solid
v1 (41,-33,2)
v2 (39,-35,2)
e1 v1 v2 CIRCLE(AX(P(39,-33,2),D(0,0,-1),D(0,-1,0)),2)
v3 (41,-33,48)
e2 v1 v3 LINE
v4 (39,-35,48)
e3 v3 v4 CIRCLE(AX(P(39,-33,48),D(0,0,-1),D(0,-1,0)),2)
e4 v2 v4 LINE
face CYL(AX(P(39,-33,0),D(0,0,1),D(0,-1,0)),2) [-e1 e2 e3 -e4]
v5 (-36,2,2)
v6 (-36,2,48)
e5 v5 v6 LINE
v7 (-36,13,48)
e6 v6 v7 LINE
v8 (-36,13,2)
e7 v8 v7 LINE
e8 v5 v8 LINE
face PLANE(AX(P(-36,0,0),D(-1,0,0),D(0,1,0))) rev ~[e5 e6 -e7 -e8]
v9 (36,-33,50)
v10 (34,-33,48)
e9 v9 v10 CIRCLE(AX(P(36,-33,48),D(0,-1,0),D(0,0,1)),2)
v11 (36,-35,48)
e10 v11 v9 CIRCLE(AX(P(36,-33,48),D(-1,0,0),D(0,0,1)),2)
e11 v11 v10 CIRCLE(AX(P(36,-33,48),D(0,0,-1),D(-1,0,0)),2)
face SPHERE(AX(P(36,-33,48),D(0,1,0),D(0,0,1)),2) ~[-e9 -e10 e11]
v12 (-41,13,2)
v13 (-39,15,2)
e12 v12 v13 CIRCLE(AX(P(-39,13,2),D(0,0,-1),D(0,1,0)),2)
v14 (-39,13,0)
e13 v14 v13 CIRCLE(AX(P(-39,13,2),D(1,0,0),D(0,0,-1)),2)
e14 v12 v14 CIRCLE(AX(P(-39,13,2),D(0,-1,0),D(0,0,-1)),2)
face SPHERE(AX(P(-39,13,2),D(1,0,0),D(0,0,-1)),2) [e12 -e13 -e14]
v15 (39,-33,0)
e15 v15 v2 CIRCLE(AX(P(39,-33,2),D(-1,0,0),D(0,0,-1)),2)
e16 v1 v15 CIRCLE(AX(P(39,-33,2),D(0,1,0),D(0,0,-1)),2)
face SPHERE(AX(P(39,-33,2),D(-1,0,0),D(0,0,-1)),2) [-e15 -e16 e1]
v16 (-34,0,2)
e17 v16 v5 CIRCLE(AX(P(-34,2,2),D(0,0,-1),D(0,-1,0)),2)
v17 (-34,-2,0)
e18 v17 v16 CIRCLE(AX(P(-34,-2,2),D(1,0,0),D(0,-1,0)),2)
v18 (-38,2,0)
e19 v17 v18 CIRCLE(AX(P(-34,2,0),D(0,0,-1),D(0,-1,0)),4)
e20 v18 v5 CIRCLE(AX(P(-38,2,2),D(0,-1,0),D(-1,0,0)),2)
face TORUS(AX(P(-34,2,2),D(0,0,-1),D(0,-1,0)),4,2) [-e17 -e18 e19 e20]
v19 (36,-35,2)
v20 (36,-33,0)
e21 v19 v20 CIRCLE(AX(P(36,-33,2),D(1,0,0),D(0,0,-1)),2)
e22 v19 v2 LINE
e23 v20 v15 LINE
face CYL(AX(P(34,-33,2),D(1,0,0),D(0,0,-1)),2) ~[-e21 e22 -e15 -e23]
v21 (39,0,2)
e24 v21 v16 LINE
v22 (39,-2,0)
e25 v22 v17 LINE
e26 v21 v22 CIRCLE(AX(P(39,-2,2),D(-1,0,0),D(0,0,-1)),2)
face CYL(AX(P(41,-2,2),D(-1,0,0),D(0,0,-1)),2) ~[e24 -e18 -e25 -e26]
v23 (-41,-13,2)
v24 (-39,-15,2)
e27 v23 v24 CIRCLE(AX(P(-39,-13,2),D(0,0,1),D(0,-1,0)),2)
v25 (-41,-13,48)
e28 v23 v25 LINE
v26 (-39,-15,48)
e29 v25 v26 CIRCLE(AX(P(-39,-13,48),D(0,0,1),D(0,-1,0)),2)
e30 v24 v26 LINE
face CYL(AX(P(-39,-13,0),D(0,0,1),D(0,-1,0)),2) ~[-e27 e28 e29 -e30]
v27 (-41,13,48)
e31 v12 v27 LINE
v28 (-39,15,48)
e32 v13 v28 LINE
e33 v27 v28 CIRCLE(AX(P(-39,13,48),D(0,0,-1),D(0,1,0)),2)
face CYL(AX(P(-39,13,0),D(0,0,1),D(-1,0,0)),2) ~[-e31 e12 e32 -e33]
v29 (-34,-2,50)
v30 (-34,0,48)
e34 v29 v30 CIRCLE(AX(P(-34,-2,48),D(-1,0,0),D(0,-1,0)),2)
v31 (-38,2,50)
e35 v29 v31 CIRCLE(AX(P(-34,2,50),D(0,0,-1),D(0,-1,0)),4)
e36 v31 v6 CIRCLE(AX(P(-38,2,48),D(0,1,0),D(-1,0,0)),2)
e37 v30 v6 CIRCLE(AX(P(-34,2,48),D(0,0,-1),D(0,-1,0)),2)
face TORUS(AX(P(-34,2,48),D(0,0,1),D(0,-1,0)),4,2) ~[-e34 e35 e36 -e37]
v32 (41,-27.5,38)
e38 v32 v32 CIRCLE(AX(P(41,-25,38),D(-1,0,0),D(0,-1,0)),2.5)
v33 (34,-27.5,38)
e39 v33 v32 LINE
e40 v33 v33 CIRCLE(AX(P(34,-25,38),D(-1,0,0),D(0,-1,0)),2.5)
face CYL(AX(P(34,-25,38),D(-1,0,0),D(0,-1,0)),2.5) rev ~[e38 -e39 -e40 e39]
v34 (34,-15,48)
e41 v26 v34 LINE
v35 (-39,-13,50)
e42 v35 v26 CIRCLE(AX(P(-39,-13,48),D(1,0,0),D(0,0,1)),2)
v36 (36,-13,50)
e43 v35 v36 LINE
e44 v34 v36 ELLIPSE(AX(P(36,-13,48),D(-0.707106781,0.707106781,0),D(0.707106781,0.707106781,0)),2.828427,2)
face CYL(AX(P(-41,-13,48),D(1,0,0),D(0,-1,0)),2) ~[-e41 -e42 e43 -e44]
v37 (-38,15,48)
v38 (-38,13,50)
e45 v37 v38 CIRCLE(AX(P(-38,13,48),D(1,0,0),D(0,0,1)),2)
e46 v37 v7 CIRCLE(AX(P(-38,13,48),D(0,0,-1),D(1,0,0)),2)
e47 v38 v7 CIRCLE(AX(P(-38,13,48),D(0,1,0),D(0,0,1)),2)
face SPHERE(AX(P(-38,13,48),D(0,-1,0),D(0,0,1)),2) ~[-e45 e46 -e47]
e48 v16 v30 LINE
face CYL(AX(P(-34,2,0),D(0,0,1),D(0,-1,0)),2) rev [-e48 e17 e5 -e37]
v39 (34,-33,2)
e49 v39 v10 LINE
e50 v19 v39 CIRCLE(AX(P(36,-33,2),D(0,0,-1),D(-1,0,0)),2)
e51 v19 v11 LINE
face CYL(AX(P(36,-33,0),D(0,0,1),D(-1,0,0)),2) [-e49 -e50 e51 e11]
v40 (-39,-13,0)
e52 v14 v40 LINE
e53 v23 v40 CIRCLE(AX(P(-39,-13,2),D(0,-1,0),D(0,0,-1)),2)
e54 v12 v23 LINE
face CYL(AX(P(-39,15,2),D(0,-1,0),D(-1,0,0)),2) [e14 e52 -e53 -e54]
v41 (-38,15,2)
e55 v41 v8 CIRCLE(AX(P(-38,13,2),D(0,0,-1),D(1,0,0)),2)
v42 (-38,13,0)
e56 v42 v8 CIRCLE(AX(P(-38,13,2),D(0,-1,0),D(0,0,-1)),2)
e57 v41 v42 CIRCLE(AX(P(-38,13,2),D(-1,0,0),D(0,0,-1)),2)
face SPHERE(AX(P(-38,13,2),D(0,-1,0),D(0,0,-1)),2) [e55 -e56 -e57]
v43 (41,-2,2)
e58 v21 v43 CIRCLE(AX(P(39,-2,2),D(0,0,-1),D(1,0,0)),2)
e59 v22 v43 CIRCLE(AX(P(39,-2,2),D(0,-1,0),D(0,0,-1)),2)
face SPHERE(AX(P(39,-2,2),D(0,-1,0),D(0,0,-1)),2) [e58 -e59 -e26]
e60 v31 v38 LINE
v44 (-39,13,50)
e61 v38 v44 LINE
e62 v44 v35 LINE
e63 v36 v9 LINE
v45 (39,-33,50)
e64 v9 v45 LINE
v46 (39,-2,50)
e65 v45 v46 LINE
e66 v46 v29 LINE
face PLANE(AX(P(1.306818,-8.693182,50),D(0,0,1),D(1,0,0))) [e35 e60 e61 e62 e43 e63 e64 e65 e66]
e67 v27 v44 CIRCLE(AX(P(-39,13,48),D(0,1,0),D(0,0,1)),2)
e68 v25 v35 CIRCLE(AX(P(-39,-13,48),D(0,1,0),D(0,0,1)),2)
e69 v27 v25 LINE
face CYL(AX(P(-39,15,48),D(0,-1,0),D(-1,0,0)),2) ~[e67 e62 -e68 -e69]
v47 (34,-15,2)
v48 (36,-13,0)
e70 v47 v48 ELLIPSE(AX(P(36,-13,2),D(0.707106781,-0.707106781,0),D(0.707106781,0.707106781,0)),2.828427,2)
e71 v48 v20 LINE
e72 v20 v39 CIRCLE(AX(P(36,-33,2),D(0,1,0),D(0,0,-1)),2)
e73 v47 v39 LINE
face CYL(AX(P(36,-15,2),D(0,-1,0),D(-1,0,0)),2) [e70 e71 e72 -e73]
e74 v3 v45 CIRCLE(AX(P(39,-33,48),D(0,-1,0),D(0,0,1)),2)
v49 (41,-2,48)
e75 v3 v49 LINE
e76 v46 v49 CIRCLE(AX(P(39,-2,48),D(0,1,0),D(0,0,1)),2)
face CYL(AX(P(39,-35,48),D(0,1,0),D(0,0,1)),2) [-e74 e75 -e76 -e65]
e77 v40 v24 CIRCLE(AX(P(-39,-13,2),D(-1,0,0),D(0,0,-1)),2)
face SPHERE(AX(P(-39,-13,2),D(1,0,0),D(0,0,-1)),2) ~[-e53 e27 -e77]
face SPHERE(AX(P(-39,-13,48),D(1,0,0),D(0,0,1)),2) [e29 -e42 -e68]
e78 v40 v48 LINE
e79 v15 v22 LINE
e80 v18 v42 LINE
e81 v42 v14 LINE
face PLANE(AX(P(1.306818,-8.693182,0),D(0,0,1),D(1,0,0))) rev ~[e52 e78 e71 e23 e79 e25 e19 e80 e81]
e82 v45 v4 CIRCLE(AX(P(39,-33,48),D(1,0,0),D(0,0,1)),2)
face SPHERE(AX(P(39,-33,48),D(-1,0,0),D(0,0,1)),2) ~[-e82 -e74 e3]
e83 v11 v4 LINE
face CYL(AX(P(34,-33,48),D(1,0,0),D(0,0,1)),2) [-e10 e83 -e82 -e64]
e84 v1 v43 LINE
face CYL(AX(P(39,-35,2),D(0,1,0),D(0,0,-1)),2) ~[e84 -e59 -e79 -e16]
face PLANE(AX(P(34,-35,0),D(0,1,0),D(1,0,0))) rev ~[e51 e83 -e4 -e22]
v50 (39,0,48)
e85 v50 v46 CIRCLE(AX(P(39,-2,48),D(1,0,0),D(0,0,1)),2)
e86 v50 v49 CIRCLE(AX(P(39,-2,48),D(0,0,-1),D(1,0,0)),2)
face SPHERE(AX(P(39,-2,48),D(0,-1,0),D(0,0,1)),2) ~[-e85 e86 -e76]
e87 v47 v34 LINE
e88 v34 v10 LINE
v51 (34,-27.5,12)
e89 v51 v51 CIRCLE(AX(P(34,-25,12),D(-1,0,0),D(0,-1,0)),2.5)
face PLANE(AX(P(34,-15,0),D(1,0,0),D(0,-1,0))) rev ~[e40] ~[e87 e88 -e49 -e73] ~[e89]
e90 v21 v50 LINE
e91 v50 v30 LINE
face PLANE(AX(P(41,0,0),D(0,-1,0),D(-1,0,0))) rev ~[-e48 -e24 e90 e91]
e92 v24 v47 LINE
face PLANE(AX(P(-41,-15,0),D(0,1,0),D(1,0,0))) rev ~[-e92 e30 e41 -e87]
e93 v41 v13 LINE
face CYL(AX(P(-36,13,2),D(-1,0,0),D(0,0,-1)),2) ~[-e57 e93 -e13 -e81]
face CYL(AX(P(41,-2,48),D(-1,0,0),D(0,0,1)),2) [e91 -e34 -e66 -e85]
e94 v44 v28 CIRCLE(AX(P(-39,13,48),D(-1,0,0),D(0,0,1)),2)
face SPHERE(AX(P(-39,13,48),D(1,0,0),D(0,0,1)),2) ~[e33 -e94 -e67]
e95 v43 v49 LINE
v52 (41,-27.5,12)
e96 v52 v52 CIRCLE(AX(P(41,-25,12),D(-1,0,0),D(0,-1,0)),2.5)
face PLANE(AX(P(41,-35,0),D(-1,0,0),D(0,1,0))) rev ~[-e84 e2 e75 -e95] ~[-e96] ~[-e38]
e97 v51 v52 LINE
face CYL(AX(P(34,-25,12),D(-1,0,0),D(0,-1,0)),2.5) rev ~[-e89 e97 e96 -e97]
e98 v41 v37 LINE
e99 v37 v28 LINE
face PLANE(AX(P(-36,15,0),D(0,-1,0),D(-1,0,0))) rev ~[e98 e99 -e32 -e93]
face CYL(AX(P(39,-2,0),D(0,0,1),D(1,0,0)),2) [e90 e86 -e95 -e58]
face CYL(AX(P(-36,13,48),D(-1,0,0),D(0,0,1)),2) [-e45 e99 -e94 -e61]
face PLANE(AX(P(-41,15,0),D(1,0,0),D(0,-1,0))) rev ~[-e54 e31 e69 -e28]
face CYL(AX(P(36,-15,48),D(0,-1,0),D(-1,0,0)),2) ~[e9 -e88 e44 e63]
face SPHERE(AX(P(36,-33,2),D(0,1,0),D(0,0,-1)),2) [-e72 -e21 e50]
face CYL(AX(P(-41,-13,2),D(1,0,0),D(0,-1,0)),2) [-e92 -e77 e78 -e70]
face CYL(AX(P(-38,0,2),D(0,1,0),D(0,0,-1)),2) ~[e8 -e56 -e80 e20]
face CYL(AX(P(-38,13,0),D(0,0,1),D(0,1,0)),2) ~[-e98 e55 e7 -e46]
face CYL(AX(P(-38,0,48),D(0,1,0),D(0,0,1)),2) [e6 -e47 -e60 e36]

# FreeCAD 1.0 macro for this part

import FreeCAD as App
import Part
import Sketcher


def edges_at(feature, points):
    """Names of the edges that pass closest to the given points."""
    edges = feature.Shape.Edges
    near = lambda p: min(range(len(edges)), key=lambda i: edges[i].distToShape(Part.Vertex(*p))[0])
    return sorted({f"Edge{near(p) + 1}" for p in points})


def add_polygon(sketch, points):
    """Adds a closed chain of lines whose ends are joined by coincident constraints."""
    first, n = sketch.GeometryCount, len(points)
    for a, b in zip(points, points[1:] + points[:1]):
        sketch.addGeometry(Part.LineSegment(App.Vector(*a, 0), App.Vector(*b, 0)), False)
    for i in range(n):
        sketch.addConstraint(Sketcher.Constraint("Coincident", first + i, 2, first + (i + 1) % n, 1))

doc = App.newDocument("Part")
body = doc.addObject("PartDesign::Body", "Body")

# Sketch on XY plane
sketch1 = doc.addObject("Sketcher::SketchObject", "Sketch")
body.addObject(sketch1)
sketch1.AttachmentSupport = (doc.XY_Plane, [""])
sketch1.MapMode = "FlatFace"
add_polygon(sketch1, [(-41, -15), (34, -15), (34, -35), (41, -35), (41, 0), (-36, 0), (-36, 15), (-41, 15)])  # lines 0-7
sketch1.addConstraint([
    Sketcher.Constraint("Horizontal", 0),
    Sketcher.Constraint("Vertical", 1),
    Sketcher.Constraint("Horizontal", 2),
    Sketcher.Constraint("Vertical", 3),
    Sketcher.Constraint("Horizontal", 4),
    Sketcher.Constraint("Vertical", 5),
    Sketcher.Constraint("Horizontal", 6),
    Sketcher.Constraint("Vertical", 7),
    Sketcher.Constraint("PointOnObject", 3, 2, -1),
    Sketcher.Constraint("DistanceX", 0, 1, 0, 2, 75.0),
    Sketcher.Constraint("DistanceX", 2, 1, 2, 2, 7.0),
    Sketcher.Constraint("DistanceX", 4, 2, 4, 1, 77.0),
    Sketcher.Constraint("DistanceY", 1, 2, 1, 1, 20.0),
    Sketcher.Constraint("DistanceY", 3, 1, 3, 2, 35.0),
    Sketcher.Constraint("DistanceY", 5, 1, 5, 2, 15.0),
    Sketcher.Constraint("DistanceX", -1, 1, 0, 2, 34.0),
])
pad1 = doc.addObject("PartDesign::Pad", "Pad")
body.addObject(pad1)
pad1.Profile = sketch1
pad1.Length = 50

# Sketch on YZ plane
sketch2 = doc.addObject("Sketcher::SketchObject", "Sketch001")
body.addObject(sketch2)
sketch2.AttachmentSupport = (doc.YZ_Plane, [""])
sketch2.MapMode = "FlatFace"
sketch2.AttachmentOffset = App.Placement(App.Vector(0, 0, 34), App.Rotation())
sketch2.addGeometry([
    Part.Circle(App.Vector(-25, 12, 0), App.Vector(0, 0, 1), 2.5),
    Part.Circle(App.Vector(-25, 38, 0), App.Vector(0, 0, 1), 2.5),
], False)
sketch2.addConstraint([
    Sketcher.Constraint("Equal", 0, 1),
    Sketcher.Constraint("Vertical", 0, 3, 1, 3),
    Sketcher.Constraint("Diameter", 0, 5.0),
    Sketcher.Constraint("DistanceX", 0, 3, -1, 1, 25.0),
    Sketcher.Constraint("DistanceY", -1, 1, 0, 3, 12.0),
    Sketcher.Constraint("DistanceY", -1, 1, 1, 3, 38.0),
])
pocket1 = doc.addObject("PartDesign::Pocket", "Pocket")
body.addObject(pocket1)
pocket1.Profile = sketch2
pocket1.Length = 25
pocket1.Reversed = True
doc.recompute()

fillet = doc.addObject("PartDesign::Fillet", "Fillet")
body.addObject(fillet)
fillet.Base = (pocket1, edges_at(pocket1, [
    (-3.5, -15, 50),
    (34, -25, 50),
    (37.5, -35, 50),
    (41, -17.5, 50),
    (2.5, 0, 50),
    (-36, 7.5, 50),
    (-38.5, 15, 50),
    (-41, 0, 50),
    (-3.5, -15, 0),
    (34, -25, 0),
    (37.5, -35, 0),
    (41, -17.5, 0),
    (2.5, 0, 0),
    (-36, 7.5, 0),
    (-38.5, 15, 0),
    (-41, 0, 0),
    (34, -35, 25),
    (-41, -15, 25),
    (-41, 15, 25),
    (-36, 15, 25),
    (41, 0, 25),
    (-36, 0, 25),
    (41, -35, 25),
]))
fillet.Radius = 2

doc.recompute()
